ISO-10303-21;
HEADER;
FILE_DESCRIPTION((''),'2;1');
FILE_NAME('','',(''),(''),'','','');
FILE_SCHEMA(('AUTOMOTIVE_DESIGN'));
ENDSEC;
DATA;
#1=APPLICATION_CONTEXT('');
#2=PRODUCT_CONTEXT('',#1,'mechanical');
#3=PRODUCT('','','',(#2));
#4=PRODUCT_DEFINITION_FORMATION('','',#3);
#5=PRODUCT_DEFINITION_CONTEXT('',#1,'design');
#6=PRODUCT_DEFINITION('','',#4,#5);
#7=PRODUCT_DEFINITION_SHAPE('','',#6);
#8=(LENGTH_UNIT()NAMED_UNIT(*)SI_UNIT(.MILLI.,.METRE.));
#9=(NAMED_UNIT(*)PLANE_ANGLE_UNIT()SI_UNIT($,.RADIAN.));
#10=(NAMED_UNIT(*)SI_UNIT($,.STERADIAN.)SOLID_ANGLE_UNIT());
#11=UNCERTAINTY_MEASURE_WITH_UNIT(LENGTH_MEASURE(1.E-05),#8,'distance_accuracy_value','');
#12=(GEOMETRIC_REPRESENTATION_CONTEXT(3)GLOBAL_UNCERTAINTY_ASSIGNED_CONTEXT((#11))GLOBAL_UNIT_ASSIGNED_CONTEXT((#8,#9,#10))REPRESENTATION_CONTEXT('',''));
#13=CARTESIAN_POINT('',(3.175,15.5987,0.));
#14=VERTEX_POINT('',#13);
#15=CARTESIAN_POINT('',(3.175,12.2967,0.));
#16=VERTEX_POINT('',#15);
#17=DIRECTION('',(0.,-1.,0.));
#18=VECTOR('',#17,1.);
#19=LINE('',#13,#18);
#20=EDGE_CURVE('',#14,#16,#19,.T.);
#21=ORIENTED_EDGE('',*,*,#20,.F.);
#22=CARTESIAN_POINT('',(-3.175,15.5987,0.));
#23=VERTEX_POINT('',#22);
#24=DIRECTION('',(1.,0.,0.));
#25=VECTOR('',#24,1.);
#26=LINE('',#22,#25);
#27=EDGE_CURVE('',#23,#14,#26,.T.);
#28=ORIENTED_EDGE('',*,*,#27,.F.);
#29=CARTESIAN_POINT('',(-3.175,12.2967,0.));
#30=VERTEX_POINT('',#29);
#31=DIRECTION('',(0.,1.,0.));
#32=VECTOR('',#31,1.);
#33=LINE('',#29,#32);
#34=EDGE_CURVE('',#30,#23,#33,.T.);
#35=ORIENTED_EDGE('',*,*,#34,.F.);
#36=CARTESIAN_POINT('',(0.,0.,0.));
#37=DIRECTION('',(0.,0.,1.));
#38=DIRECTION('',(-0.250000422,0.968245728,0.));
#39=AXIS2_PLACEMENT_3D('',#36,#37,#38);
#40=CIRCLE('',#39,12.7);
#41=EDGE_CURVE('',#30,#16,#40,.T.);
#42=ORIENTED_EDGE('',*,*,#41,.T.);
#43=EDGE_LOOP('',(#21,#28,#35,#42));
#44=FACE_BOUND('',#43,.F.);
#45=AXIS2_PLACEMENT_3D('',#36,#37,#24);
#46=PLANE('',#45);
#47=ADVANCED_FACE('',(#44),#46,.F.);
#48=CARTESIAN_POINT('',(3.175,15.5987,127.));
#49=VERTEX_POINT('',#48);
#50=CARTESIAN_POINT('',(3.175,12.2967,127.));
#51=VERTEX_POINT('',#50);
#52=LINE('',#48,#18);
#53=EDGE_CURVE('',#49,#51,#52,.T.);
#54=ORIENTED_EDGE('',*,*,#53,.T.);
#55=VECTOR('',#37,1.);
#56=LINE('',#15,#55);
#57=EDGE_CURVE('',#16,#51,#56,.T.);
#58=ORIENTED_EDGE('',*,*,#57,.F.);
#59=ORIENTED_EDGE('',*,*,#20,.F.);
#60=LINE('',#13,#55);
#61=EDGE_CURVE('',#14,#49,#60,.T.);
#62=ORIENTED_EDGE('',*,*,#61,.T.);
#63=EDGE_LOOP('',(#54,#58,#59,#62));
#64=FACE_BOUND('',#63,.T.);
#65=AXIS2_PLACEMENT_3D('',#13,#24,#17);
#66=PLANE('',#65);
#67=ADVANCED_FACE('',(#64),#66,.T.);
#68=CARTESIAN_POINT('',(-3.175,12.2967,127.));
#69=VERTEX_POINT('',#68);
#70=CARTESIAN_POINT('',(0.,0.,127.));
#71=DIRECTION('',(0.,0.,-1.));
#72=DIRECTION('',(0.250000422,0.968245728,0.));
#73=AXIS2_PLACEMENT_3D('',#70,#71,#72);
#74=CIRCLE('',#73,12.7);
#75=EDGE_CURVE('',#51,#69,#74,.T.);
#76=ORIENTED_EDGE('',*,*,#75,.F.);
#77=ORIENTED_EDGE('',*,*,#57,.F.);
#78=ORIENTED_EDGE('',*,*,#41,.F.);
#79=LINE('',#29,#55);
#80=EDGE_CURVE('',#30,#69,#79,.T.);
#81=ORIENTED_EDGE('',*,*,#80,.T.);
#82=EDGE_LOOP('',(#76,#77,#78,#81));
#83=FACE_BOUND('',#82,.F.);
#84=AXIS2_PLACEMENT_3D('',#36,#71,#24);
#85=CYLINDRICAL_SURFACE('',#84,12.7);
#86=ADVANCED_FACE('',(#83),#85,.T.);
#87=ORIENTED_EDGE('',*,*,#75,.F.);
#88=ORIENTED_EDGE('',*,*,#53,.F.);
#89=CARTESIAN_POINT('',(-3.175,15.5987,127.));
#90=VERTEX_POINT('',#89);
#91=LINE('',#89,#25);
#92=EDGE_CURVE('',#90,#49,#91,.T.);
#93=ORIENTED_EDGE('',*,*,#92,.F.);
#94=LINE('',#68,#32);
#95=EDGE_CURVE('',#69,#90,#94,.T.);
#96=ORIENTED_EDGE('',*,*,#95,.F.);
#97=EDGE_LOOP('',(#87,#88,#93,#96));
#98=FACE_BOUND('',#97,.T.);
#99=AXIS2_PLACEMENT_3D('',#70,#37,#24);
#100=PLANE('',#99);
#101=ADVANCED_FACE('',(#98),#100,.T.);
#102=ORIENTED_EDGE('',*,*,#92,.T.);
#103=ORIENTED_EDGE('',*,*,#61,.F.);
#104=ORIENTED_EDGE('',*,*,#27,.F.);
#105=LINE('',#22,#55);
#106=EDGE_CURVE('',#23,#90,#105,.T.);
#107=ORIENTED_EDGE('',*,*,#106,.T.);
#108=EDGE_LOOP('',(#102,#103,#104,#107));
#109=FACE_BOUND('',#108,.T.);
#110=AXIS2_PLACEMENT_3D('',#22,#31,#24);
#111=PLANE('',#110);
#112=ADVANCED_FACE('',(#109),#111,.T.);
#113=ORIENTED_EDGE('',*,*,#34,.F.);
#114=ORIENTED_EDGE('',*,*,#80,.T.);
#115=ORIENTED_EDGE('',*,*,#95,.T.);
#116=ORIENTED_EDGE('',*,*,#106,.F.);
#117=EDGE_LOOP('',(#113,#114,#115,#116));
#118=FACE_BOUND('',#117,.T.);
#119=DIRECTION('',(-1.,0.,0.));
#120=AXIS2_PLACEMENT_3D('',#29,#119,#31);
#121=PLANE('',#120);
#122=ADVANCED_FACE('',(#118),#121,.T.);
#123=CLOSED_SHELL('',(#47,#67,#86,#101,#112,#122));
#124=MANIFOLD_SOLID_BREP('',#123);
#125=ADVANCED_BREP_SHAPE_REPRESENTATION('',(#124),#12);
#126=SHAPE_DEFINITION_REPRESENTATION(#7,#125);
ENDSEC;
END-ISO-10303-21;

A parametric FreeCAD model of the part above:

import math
import FreeCAD as App
import Part
import Sketcher
Q = App.Units.Quantity

doc = App.newDocument("Part")
params = doc.addObject("Spreadsheet::Sheet", "Params")
for row, (alias, value) in enumerate([
    ("sketch1_radius", "0.5 in"),
    ("sketch1_width", "0.25 in"),
    ("sketch1_height", "0.13 in"),
    ("pad1_length", "5 in"),
], start=1):
    params.set(f"A{row}", alias)
    params.set(f"B{row}", "=" + value)
    params.setAlias(f"B{row}", alias)

body = doc.addObject("PartDesign::Body", "Body")

# Sketch on XY plane
sketch1 = body.newObject("Sketcher::SketchObject", "Sketch")
sketch1.AttachmentSupport = (doc.getObject("XY_Plane"), [""])
sketch1.MapMode = "FlatFace"
sketch1.addGeometry([
    Part.ArcOfCircle(Part.Circle(App.Vector(0, 0, 0), App.Vector(0, 0, 1), 12.7), math.radians(104.477537), math.radians(435.522463)),
    Part.LineSegment(App.Vector(3.175, 12.2967, 0), App.Vector(3.175, 15.5987, 0)),
    Part.LineSegment(App.Vector(3.175, 15.5987, 0), App.Vector(-3.175, 15.5987, 0)),
    Part.LineSegment(App.Vector(-3.175, 15.5987, 0), App.Vector(-3.175, 12.2967, 0)),
], False)
sketch1.addConstraint([
    Sketcher.Constraint("Coincident", 0, 2, 1, 1),
    Sketcher.Constraint("Coincident", 1, 2, 2, 1),
    Sketcher.Constraint("Coincident", 2, 2, 3, 1),
    Sketcher.Constraint("Coincident", 3, 2, 0, 1),
    Sketcher.Constraint("Vertical", 1),
    Sketcher.Constraint("Horizontal", 2),
    Sketcher.Constraint("Vertical", 3),
    Sketcher.Constraint("Coincident", 0, 3, -1, 1),
    Sketcher.Constraint("Horizontal", 0, 2, 3, 2),
    Sketcher.Constraint("Radius", 0, Q("0.5 in")),
    Sketcher.Constraint("DistanceX", 2, 2, 2, 1, Q("0.25 in")),
    Sketcher.Constraint("DistanceY", 1, 1, 1, 2, Q("0.13 in")),
])
sketch1.setExpression("Constraints[9]", "Params.sketch1_radius")
sketch1.setExpression("Constraints[10]", "Params.sketch1_width")
sketch1.setExpression("Constraints[11]", "Params.sketch1_height")
pad1 = body.newObject("PartDesign::Pad", "Pad")
pad1.Profile = sketch1
pad1.setExpression("Length", "Params.pad1_length")

doc.recompute()
